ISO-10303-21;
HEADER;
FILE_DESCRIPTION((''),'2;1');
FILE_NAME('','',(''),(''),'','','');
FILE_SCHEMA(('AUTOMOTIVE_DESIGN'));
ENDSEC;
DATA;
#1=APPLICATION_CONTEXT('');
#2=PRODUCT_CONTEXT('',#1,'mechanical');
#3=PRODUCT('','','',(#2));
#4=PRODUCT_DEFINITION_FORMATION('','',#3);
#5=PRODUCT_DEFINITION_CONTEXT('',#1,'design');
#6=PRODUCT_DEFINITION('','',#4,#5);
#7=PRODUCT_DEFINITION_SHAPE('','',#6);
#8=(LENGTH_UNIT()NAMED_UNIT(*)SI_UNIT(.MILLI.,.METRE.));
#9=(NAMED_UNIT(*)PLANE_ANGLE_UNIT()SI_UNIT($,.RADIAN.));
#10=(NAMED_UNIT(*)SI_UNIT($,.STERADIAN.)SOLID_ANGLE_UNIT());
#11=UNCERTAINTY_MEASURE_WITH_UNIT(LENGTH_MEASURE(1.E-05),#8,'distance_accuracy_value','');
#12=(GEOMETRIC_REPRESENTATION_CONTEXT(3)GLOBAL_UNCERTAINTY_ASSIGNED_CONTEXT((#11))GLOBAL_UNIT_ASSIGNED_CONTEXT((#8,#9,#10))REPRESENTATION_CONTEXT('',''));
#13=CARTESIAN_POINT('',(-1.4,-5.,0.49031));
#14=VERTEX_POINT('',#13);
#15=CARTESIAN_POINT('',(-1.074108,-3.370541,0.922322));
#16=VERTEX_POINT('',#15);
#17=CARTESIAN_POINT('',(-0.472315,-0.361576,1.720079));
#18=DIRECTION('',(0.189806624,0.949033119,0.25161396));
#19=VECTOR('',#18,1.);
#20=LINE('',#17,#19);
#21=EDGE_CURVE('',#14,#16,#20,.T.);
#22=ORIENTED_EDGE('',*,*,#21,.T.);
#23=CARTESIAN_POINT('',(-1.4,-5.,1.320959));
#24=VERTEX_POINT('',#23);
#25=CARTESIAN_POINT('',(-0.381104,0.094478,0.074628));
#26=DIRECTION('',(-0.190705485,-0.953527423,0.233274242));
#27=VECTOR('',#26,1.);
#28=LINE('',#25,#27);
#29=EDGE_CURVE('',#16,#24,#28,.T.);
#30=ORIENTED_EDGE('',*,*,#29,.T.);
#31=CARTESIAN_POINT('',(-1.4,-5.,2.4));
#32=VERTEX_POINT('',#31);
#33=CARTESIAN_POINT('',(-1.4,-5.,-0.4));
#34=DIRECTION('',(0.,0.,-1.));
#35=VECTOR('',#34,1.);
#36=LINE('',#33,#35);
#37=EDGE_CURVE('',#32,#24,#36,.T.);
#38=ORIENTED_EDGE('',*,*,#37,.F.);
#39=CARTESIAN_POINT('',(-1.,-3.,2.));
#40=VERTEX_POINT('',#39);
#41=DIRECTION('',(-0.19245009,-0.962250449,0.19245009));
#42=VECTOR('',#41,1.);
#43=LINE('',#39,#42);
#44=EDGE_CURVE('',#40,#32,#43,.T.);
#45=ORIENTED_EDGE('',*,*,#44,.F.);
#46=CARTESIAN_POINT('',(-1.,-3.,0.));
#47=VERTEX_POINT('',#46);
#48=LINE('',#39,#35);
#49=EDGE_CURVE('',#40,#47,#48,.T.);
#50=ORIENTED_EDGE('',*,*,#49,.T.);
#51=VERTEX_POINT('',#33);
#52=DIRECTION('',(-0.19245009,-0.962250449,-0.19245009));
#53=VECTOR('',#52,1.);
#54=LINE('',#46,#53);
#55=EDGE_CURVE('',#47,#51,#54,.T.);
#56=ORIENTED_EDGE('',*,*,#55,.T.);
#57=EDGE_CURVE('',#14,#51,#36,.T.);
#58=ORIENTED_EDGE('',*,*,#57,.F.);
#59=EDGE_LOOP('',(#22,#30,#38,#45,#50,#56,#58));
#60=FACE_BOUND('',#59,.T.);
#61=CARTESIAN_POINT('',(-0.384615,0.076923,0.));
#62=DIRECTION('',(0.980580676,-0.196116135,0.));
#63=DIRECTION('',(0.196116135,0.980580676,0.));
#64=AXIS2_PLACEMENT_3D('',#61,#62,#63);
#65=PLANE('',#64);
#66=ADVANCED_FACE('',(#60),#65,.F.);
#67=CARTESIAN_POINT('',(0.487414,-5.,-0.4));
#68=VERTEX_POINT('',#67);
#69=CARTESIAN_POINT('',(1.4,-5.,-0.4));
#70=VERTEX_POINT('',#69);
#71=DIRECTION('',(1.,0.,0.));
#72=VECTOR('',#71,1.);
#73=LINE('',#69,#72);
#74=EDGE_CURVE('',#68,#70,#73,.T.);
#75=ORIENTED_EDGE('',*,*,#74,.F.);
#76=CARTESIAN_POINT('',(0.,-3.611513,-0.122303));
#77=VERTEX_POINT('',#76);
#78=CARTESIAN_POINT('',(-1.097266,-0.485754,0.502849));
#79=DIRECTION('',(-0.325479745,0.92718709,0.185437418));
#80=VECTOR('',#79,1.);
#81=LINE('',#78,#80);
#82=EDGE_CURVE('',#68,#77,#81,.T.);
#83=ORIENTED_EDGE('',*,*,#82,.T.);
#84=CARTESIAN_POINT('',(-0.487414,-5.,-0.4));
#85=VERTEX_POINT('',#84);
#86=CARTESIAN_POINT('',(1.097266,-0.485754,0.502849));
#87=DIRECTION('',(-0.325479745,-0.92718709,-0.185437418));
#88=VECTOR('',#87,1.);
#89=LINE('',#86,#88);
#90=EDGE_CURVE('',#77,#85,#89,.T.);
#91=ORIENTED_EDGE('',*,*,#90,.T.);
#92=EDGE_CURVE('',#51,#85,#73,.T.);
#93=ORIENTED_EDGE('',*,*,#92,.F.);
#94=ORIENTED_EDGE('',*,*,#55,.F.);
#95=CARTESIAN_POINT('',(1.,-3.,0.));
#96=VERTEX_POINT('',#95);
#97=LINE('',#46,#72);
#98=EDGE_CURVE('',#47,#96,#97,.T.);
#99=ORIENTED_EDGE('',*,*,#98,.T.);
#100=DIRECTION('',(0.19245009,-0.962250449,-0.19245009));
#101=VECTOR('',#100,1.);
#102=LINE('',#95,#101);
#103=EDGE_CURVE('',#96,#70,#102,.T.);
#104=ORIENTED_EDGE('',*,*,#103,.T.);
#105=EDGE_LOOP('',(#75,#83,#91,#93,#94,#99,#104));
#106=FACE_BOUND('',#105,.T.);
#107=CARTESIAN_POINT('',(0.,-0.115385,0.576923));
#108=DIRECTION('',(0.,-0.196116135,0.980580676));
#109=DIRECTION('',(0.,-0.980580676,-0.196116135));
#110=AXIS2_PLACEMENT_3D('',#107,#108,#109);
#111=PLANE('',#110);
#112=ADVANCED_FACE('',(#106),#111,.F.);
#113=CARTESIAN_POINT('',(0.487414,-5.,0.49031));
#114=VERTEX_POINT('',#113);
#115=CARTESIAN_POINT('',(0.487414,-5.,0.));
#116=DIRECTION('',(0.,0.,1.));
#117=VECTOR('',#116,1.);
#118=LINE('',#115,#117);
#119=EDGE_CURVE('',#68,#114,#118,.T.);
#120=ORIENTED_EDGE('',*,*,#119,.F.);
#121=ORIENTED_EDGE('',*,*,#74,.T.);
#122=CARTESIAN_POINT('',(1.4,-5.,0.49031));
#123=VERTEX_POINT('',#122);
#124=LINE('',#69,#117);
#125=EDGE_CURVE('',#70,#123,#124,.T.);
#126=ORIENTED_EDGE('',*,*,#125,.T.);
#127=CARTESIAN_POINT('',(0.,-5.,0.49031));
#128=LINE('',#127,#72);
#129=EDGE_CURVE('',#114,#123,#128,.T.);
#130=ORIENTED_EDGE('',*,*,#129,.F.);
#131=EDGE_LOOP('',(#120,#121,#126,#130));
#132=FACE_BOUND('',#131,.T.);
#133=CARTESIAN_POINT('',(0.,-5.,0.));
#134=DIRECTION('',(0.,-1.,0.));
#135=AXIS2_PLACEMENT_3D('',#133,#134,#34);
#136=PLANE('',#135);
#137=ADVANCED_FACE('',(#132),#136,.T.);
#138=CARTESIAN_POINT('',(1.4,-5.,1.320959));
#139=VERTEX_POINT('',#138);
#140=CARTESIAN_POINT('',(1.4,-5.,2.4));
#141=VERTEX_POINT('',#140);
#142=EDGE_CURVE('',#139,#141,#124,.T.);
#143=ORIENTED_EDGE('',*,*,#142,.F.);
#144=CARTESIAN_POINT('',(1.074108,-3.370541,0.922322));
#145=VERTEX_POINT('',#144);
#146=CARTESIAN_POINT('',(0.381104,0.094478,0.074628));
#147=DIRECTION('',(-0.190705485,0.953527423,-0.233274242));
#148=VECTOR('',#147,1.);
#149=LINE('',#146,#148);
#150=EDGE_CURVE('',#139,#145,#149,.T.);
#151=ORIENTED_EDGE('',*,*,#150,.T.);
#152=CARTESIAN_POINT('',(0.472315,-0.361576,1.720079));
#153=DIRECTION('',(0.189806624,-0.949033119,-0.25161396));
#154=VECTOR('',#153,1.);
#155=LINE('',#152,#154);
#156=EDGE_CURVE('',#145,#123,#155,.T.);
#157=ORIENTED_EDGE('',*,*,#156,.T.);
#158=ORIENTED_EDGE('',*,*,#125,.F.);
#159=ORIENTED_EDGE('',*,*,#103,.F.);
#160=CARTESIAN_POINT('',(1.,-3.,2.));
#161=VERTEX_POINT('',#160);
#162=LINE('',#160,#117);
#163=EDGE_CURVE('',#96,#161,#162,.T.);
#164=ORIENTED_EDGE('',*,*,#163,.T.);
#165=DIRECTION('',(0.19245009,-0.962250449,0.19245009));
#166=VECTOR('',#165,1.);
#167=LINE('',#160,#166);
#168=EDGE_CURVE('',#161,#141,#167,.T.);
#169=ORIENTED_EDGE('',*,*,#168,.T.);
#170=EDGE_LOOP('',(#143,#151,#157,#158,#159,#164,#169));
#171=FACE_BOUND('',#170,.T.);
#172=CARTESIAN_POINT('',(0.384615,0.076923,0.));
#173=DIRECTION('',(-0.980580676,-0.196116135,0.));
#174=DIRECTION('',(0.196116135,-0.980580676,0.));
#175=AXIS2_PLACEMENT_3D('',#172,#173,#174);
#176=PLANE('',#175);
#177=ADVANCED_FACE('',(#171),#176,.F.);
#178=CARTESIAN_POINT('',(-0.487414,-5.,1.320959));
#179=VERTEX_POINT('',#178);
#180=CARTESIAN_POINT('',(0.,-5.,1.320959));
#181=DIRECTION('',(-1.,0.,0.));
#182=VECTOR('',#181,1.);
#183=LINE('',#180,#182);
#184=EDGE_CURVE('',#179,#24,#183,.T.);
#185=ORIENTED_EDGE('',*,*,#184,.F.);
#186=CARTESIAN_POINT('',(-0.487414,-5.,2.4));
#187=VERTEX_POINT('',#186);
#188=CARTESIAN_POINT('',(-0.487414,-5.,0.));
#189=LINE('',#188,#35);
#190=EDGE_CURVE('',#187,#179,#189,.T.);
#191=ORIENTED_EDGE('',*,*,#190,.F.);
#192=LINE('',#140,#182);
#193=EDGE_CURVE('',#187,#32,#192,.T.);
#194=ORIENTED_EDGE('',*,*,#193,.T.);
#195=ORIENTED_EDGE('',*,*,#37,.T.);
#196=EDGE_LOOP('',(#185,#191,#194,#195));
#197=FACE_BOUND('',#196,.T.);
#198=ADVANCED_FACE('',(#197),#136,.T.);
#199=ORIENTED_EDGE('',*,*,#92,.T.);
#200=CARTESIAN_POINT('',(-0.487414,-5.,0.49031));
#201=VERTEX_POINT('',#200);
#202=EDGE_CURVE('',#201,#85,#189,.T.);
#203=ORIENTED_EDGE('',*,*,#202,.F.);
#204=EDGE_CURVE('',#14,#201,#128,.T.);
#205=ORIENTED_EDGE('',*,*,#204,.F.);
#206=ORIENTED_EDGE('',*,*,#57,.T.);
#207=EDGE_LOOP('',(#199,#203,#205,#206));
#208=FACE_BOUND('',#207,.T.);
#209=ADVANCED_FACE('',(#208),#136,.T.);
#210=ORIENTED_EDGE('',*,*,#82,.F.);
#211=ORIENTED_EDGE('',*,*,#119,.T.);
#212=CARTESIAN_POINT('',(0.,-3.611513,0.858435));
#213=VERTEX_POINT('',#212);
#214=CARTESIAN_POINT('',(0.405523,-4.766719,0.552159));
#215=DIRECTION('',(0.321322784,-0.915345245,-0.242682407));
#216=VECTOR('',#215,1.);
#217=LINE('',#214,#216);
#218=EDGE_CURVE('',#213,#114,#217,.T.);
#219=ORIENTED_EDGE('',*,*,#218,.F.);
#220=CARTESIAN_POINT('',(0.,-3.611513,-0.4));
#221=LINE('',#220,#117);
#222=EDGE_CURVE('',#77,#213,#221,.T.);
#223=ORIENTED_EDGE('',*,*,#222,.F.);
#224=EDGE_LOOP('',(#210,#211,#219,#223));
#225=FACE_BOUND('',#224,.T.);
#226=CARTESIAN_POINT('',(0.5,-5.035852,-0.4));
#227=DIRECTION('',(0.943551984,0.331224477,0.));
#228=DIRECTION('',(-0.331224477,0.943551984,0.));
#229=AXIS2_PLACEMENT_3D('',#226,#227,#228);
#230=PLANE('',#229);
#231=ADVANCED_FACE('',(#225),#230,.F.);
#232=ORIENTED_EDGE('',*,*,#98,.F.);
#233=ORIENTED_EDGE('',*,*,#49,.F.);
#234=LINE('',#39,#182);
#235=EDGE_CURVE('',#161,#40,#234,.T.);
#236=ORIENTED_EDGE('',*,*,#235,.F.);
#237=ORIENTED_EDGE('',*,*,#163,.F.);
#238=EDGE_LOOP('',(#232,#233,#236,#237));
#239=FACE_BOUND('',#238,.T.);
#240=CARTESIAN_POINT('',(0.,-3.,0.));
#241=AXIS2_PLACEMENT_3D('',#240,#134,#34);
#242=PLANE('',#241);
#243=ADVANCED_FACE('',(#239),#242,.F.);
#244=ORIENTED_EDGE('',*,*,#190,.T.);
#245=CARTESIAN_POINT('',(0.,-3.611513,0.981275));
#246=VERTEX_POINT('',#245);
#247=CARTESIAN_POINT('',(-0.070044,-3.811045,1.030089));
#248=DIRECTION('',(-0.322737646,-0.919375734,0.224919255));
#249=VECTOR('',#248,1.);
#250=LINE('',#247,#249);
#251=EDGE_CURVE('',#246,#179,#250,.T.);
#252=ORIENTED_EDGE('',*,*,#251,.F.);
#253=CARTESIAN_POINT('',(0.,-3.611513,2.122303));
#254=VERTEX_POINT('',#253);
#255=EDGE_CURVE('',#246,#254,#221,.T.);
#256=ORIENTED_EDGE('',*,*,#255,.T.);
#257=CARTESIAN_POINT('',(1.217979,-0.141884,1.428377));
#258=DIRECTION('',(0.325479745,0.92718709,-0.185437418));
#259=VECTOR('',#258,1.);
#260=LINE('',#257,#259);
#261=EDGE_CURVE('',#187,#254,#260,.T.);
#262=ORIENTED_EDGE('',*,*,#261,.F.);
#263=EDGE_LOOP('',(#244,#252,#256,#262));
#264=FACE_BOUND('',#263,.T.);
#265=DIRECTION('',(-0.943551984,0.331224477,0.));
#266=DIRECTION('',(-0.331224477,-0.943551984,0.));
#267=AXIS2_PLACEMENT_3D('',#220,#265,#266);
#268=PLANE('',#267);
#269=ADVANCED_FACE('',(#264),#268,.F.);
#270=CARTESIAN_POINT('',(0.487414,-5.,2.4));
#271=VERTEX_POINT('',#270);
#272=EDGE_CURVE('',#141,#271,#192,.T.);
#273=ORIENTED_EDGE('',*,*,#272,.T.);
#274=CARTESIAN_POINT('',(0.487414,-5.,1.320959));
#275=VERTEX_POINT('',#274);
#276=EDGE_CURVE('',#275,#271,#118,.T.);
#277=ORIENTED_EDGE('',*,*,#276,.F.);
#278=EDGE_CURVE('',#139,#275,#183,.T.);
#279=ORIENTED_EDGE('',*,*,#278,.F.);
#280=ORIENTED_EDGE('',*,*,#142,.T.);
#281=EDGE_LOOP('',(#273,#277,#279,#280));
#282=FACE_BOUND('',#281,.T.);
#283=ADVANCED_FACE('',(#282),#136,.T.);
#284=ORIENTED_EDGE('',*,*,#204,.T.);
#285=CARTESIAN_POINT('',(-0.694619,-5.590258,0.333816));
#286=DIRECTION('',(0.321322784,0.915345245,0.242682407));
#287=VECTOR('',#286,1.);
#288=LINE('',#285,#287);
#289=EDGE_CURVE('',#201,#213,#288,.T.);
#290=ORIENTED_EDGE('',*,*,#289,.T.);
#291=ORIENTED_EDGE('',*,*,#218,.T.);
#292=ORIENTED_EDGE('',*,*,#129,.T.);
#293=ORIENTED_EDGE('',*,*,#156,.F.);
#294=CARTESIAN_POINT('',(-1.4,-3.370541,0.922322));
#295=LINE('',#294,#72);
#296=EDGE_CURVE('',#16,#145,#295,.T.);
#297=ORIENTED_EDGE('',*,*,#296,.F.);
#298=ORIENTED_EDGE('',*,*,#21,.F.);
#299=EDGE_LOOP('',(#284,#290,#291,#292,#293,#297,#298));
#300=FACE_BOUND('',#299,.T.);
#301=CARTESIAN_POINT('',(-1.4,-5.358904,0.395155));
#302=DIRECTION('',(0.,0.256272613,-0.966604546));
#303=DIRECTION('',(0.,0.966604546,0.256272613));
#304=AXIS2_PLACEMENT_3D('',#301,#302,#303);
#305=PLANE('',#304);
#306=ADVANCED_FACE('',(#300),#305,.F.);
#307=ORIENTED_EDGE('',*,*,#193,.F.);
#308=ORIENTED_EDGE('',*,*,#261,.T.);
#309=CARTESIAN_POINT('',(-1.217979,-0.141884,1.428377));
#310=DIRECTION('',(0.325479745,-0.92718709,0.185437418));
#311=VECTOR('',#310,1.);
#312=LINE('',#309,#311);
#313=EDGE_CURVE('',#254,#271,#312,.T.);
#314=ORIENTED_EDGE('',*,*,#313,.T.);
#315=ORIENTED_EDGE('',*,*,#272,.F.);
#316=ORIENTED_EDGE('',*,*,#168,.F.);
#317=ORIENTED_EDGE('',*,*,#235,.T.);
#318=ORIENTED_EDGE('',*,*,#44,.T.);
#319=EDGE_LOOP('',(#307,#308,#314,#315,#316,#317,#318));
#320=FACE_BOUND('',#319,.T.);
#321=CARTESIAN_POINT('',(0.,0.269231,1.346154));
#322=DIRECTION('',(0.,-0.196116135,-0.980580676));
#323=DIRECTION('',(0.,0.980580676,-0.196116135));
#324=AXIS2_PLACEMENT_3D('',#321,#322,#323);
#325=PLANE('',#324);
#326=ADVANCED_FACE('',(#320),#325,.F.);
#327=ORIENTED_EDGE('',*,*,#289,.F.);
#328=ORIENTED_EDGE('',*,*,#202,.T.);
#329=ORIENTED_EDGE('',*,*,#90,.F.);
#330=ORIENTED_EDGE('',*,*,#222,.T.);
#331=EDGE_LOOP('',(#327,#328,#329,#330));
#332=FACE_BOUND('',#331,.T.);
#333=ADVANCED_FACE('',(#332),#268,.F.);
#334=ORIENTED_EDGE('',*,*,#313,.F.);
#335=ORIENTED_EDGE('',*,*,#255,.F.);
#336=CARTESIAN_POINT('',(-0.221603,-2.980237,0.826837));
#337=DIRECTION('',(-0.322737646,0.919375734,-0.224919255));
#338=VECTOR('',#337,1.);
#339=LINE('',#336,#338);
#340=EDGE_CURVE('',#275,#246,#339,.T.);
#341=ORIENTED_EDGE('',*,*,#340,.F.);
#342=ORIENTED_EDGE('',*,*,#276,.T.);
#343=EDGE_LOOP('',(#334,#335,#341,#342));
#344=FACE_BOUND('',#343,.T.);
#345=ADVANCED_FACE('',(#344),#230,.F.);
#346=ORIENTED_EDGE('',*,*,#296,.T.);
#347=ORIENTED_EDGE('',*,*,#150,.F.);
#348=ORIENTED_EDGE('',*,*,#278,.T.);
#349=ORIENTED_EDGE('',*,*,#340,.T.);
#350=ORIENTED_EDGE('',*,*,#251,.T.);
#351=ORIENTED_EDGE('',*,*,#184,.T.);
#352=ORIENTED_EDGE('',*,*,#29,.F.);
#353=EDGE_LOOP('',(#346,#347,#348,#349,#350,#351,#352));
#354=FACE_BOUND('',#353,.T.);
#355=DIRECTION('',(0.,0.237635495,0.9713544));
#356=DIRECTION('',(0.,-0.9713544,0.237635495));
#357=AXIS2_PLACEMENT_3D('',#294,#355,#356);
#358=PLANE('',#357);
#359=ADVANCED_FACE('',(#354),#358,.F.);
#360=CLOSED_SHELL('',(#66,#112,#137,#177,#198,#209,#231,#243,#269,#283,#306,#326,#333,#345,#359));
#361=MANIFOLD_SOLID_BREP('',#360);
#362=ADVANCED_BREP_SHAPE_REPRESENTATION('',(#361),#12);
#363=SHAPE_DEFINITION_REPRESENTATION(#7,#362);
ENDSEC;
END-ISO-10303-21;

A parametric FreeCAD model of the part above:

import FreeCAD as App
import Part
import Sketcher

doc = App.newDocument("Part")
body = doc.addObject("PartDesign::Body", "Body")

# Sketch on XZ plane
sketch1 = doc.addObject("Sketcher::SketchObject", "Sketch")
body.addObject(sketch1)
sketch1.AttachmentSupport = (doc.XZ_Plane, [""])
sketch1.MapMode = "FlatFace"
sketch1.AttachmentOffset = App.Placement(App.Vector(0, 0, 3), App.Rotation())
sketch1.addGeometry(Part.LineSegment(App.Vector(-1, 2, 0), App.Vector(-1, 0, 0)), False)
sketch1.addGeometry(Part.LineSegment(App.Vector(-1, 0, 0), App.Vector(1, 0, 0)), False)
sketch1.addGeometry(Part.LineSegment(App.Vector(1, 0, 0), App.Vector(1, 2, 0)), False)
sketch1.addGeometry(Part.LineSegment(App.Vector(1, 2, 0), App.Vector(-1, 2, 0)), False)
sketch1.addConstraint(Sketcher.Constraint("Coincident", 0, 2, 1, 1))
sketch1.addConstraint(Sketcher.Constraint("Coincident", 1, 2, 2, 1))
sketch1.addConstraint(Sketcher.Constraint("Coincident", 2, 2, 3, 1))
sketch1.addConstraint(Sketcher.Constraint("Coincident", 3, 2, 0, 1))
sketch1.addConstraint(Sketcher.Constraint("Vertical", 0))
sketch1.addConstraint(Sketcher.Constraint("Horizontal", 1))
sketch1.addConstraint(Sketcher.Constraint("Vertical", 2))
sketch1.addConstraint(Sketcher.Constraint("Horizontal", 3))
sketch1.addConstraint(Sketcher.Constraint("Symmetric", 0, 2, 1, 2, -1, 1))
sketch1.addConstraint(Sketcher.Constraint("Equal", 3, 0))
sketch1.addConstraint(Sketcher.Constraint("DistanceX", 1, 1, 1, 2, 2.0))

# Sketch on XZ plane
sketch2 = doc.addObject("Sketcher::SketchObject", "Sketch001")
body.addObject(sketch2)
sketch2.AttachmentSupport = (doc.XZ_Plane, [""])
sketch2.MapMode = "FlatFace"
sketch2.AttachmentOffset = App.Placement(App.Vector(0, 0, 5), App.Rotation())
sketch2.addGeometry(Part.LineSegment(App.Vector(1.4, -0.4, 0), App.Vector(1.4, 2.4, 0)), False)
sketch2.addGeometry(Part.LineSegment(App.Vector(1.4, 2.4, 0), App.Vector(-1.4, 2.4, 0)), False)
sketch2.addGeometry(Part.LineSegment(App.Vector(-1.4, 2.4, 0), App.Vector(-1.4, -0.4, 0)), False)
sketch2.addGeometry(Part.LineSegment(App.Vector(-1.4, -0.4, 0), App.Vector(1.4, -0.4, 0)), False)
sketch2.addConstraint(Sketcher.Constraint("Coincident", 0, 2, 1, 1))
sketch2.addConstraint(Sketcher.Constraint("Coincident", 1, 2, 2, 1))
sketch2.addConstraint(Sketcher.Constraint("Coincident", 2, 2, 3, 1))
sketch2.addConstraint(Sketcher.Constraint("Coincident", 3, 2, 0, 1))
sketch2.addConstraint(Sketcher.Constraint("Vertical", 0))
sketch2.addConstraint(Sketcher.Constraint("Horizontal", 1))
sketch2.addConstraint(Sketcher.Constraint("Vertical", 2))
sketch2.addConstraint(Sketcher.Constraint("Horizontal", 3))
sketch2.addConstraint(Sketcher.Constraint("Equal", 3, 0))
sketch2.addConstraint(Sketcher.Constraint("DistanceX", 1, 2, 1, 1, 2.8))
sketch2.addConstraint(Sketcher.Constraint("DistanceX", -1, 1, 0, 2, 1.4))
sketch2.addConstraint(Sketcher.Constraint("DistanceY", -1, 1, 0, 2, 2.4))

additiveloft = doc.addObject("PartDesign::AdditiveLoft", "AdditiveLoft")
body.addObject(additiveloft)
additiveloft.Profile = sketch1
additiveloft.Sections = [sketch2]

# Sketch on YZ plane
sketch3 = doc.addObject("Sketcher::SketchObject", "Sketch002")
body.addObject(sketch3)
sketch3.AttachmentSupport = (doc.YZ_Plane, [""])
sketch3.MapMode = "FlatFace"
sketch3.AttachmentOffset = App.Placement(App.Vector(0, 0, -1.4), App.Rotation())
sketch3.addGeometry(Part.LineSegment(App.Vector(-5.358904, 0.395155, 0), App.Vector(-3.370541, 0.922322, 0)), False)
sketch3.addGeometry(Part.LineSegment(App.Vector(-3.370541, 0.922322, 0), App.Vector(-5.503022, 1.44402, 0)), False)
sketch3.addGeometry(Part.LineSegment(App.Vector(-5.503022, 1.44402, 0), App.Vector(-5.358904, 0.395155, 0)), False)
sketch3.addConstraint(Sketcher.Constraint("Coincident", 0, 2, 1, 1))
sketch3.addConstraint(Sketcher.Constraint("Coincident", 1, 2, 2, 1))
sketch3.addConstraint(Sketcher.Constraint("Coincident", 2, 2, 0, 1))
sketch3.addConstraint(Sketcher.Constraint("Distance", 0, 2.057059))
sketch3.addConstraint(Sketcher.Constraint("Distance", 1, 2.195368))
sketch3.addConstraint(Sketcher.Constraint("Distance", 2, 1.05872))
sketch3.addConstraint(Sketcher.Constraint("DistanceX", 0, 2, -1, 1, 3.370541))
sketch3.addConstraint(Sketcher.Constraint("DistanceX", 1, 2, -1, 1, 5.503022))
sketch3.addConstraint(Sketcher.Constraint("DistanceY", -1, 1, 1, 2, 1.44402))
pocket1 = doc.addObject("PartDesign::Pocket", "Pocket")
body.addObject(pocket1)
pocket1.Profile = sketch3
pocket1.Length = 2.8
pocket1.Reversed = True

# Sketch on XY plane
sketch4 = doc.addObject("Sketcher::SketchObject", "Sketch003")
body.addObject(sketch4)
sketch4.AttachmentSupport = (doc.XY_Plane, [""])
sketch4.MapMode = "FlatFace"
sketch4.AttachmentOffset = App.Placement(App.Vector(0, 0, -0.4), App.Rotation())
sketch4.addGeometry(Part.LineSegment(App.Vector(0, -3.611513, 0), App.Vector(-0.5, -5.035852, 0)), False)
sketch4.addGeometry(Part.LineSegment(App.Vector(-0.5, -5.035852, 0), App.Vector(0.5, -5.035852, 0)), False)
sketch4.addGeometry(Part.LineSegment(App.Vector(0.5, -5.035852, 0), App.Vector(0, -3.611513, 0)), False)
sketch4.addConstraint(Sketcher.Constraint("Coincident", 0, 2, 1, 1))
sketch4.addConstraint(Sketcher.Constraint("Coincident", 1, 2, 2, 1))
sketch4.addConstraint(Sketcher.Constraint("Coincident", 2, 2, 0, 1))
sketch4.addConstraint(Sketcher.Constraint("Horizontal", 1))
sketch4.addConstraint(Sketcher.Constraint("PointOnObject", 2, 2, -2))
sketch4.addConstraint(Sketcher.Constraint("Equal", 0, 2))
sketch4.addConstraint(Sketcher.Constraint("DistanceX", 1, 1, 1, 2, 1.0))
sketch4.addConstraint(Sketcher.Constraint("Distance", 0, 1.50955))
sketch4.addConstraint(Sketcher.Constraint("DistanceY", 0, 2, -1, 1, 5.035852))
pocket2 = doc.addObject("PartDesign::Pocket", "Pocket001")
body.addObject(pocket2)
pocket2.Profile = sketch4
pocket2.Length = 2.8
pocket2.Reversed = True

doc.recompute()
